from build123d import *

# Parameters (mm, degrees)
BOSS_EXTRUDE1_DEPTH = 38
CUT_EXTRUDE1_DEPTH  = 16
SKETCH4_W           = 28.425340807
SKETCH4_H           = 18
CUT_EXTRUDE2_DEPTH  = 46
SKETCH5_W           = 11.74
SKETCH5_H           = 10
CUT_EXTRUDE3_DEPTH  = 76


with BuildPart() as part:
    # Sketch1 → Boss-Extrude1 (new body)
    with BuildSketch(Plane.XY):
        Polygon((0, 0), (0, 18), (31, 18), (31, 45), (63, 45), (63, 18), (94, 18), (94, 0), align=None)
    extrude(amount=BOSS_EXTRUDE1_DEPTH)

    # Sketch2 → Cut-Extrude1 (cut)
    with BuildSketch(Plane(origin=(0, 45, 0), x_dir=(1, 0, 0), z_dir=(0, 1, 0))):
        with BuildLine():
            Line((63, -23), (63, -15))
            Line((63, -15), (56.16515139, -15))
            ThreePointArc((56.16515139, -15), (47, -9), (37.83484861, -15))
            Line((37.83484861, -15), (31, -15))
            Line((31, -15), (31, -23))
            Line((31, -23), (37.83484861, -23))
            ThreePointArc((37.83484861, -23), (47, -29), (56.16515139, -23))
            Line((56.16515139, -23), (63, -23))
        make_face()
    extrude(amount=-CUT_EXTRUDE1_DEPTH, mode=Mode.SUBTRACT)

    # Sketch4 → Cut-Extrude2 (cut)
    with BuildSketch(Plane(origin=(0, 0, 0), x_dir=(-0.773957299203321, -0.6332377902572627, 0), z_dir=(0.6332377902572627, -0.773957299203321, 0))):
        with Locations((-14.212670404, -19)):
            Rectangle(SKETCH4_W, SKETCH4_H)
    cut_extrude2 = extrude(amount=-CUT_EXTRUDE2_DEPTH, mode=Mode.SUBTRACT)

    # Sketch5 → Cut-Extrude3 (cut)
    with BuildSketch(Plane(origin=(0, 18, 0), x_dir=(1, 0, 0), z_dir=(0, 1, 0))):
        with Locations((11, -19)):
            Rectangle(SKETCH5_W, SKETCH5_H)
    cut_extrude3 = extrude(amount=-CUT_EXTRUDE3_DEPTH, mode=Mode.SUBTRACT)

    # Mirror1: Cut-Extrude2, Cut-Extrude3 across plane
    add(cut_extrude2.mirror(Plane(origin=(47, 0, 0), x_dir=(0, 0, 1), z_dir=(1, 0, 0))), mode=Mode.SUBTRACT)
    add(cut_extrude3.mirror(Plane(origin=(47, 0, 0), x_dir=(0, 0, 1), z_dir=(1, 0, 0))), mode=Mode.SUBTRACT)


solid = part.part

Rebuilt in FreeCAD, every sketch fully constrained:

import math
import FreeCAD as App
import Part
import Sketcher

V = App.Vector


def add_polygon(sketch, points):
    """Adds a closed chain of lines whose ends are joined by coincident constraints."""
    first, n = sketch.GeometryCount, len(points)
    for a, b in zip(points, points[1:] + points[:1]):
        sketch.addGeometry(Part.LineSegment(App.Vector(*a, 0), App.Vector(*b, 0)), False)
    for i in range(n):
        sketch.addConstraint(Sketcher.Constraint("Coincident", first + i, 2, first + (i + 1) % n, 1))

doc = App.newDocument("Part")
params = doc.addObject("Spreadsheet::Sheet", "Params")
for row, (alias, value) in enumerate([
    ("sketch1_width", "94 mm"),
    ("sketch1_width2", "31 mm"),
    ("sketch1_height", "18 mm"),
    ("sketch1_height2", "27 mm"),
    ("pad1_length", "38 mm"),
    ("sketch2_radius", "10 mm"),
    ("sketch2_height", "8 mm"),
    ("pocket1_length", "16 mm"),
    ("sketch3_height", "18 mm"),
    ("pocket2_length", "46 mm"),
    ("sketch4_height", "10 mm"),
    ("sketch4_width", "11.74 mm"),
    ("pocket3_length", "76 mm"),
], start=1):
    params.set(f"A{row}", alias)
    params.set(f"B{row}", "=" + value)
    params.setAlias(f"B{row}", alias)

body = doc.addObject("PartDesign::Body", "Body")

sketch1 = body.newObject("Sketcher::SketchObject", "Sketch")
sketch1.AttachmentSupport = (doc.getObject("XY_Plane"), [""])
sketch1.MapMode = "FlatFace"
add_polygon(sketch1, [(0, 18), (0, 0), (94, 0), (94, 18), (63, 18), (63, 45), (31, 45), (31, 18)])
sketch1.addConstraint([
    Sketcher.Constraint("Vertical", 0),
    Sketcher.Constraint("Horizontal", 1),
    Sketcher.Constraint("Vertical", 2),
    Sketcher.Constraint("Horizontal", 3),
    Sketcher.Constraint("Vertical", 4),
    Sketcher.Constraint("Horizontal", 5),
    Sketcher.Constraint("Vertical", 6),
    Sketcher.Constraint("Horizontal", 7),
    Sketcher.Constraint("Coincident", 0, 2, -1, 1),
    Sketcher.Constraint("Horizontal", 3, 2, 6, 2),
    Sketcher.Constraint("Equal", 3, 7),
    Sketcher.Constraint("DistanceX", 1, 1, 1, 2, 94.0),
    Sketcher.Constraint("DistanceX", 3, 2, 3, 1, 31.0),
    Sketcher.Constraint("DistanceY", 0, 2, 0, 1, 18.0),
    Sketcher.Constraint("DistanceY", 4, 1, 4, 2, 27.0),
])
sketch1.setExpression("Constraints[19]", "Params.sketch1_width")
sketch1.setExpression("Constraints[20]", "Params.sketch1_width2")
sketch1.setExpression("Constraints[21]", "Params.sketch1_height")
sketch1.setExpression("Constraints[22]", "Params.sketch1_height2")
pad1 = body.newObject("PartDesign::Pad", "Pad")
pad1.Profile = sketch1
pad1.setExpression("Length", "Params.pad1_length")

sketch2 = body.newObject("Sketcher::SketchObject", "Sketch001")
sketch2.AttachmentSupport = (doc.getObject("XZ_Plane"), [""])
sketch2.MapMode = "FlatFace"
sketch2.AttachmentOffset = App.Placement(V(0, 0, -45), App.Rotation())
sketch2.addGeometry([
    Part.LineSegment(V(63, 23, 0), V(63, 15, 0)),
    Part.LineSegment(V(63, 15, 0), V(56, 15, 0)),
    Part.ArcOfCircle(Part.Circle(V(47, 19, 0), V(0, 0, 1), 10), math.radians(-156), math.radians(-24)),
    Part.LineSegment(V(38, 15, 0), V(31, 15, 0)),
    Part.LineSegment(V(31, 15, 0), V(31, 23, 0)),
    Part.LineSegment(V(31, 23, 0), V(38, 23, 0)),
    Part.ArcOfCircle(Part.Circle(V(47, 19, 0), V(0, 0, 1), 10), math.radians(24), math.radians(156)),
    Part.LineSegment(V(56, 23, 0), V(63, 23, 0)),
], False)
sketch2.addConstraint([
    Sketcher.Constraint("Coincident", 0, 2, 1, 1),
    Sketcher.Constraint("Coincident", 1, 2, 2, 2),
    Sketcher.Constraint("Coincident", 2, 1, 3, 1),
    Sketcher.Constraint("Coincident", 3, 2, 4, 1),
    Sketcher.Constraint("Coincident", 4, 2, 5, 1),
    Sketcher.Constraint("Coincident", 5, 2, 6, 2),
    Sketcher.Constraint("Coincident", 6, 1, 7, 1),
    Sketcher.Constraint("Coincident", 7, 2, 0, 1),
    Sketcher.Constraint("Vertical", 0),
    Sketcher.Constraint("Horizontal", 1),
    Sketcher.Constraint("Horizontal", 3),
    Sketcher.Constraint("Vertical", 4),
    Sketcher.Constraint("Horizontal", 5),
    Sketcher.Constraint("Horizontal", 7),
    Sketcher.Constraint("Coincident", 6, 3, 2, 3),
    Sketcher.Constraint("Equal", 2, 6),
    Sketcher.Constraint("Horizontal", 1, 2, 2, 1),
    Sketcher.Constraint("Horizontal", 5, 2, 6, 1),
    Sketcher.Constraint("Vertical", 2, 1, 5, 2),
    Sketcher.Constraint("Equal", 1, 3),
    Sketcher.Constraint("Radius", 2, 10.0),
    Sketcher.Constraint("DistanceY", 0, 2, 0, 1, 8.0),
    Sketcher.Constraint("DistanceX", -1, 1, 2, 3, 47.0),
    Sketcher.Constraint("DistanceY", -1, 1, 2, 3, 19.0),
    Sketcher.Constraint("DistanceX", -1, 1, 0, 2, 63.0),
])
sketch2.setExpression("Constraints[20]", "Params.sketch2_radius")
sketch2.setExpression("Constraints[21]", "Params.sketch2_height")
pocket1 = body.newObject("PartDesign::Pocket", "Pocket")
pocket1.Profile = sketch2
pocket1.setExpression("Length", "Params.pocket1_length")
pocket1.Reversed = True

sketch3 = body.newObject("Sketcher::SketchObject", "Sketch002")
sketch3.Placement = App.Placement(V(0, 0, 0), App.Rotation(V(-0.773957299, -0.63323779, 0), V(0, 0, -0.999999999), V(0.63323779, -0.773957299, 0), "ZXY"))
add_polygon(sketch3, [(-28, -10), (-28, -28), (0, -28), (0, -10)])
sketch3.addConstraint([
    Sketcher.Constraint("Vertical", 0),
    Sketcher.Constraint("Horizontal", 1),
    Sketcher.Constraint("Vertical", 2),
    Sketcher.Constraint("Horizontal", 3),
    Sketcher.Constraint("PointOnObject", 1, 2, -2),
    Sketcher.Constraint("DistanceY", 0, 2, 0, 1, 18.0),
    Sketcher.Constraint("DistanceY", 0, 2, -1, 1, 28.0),
    Sketcher.Constraint("DistanceX", 1, 1, 1, 2, 28.425341),
])
sketch3.setExpression("Constraints[9]", "Params.sketch3_height")
pocket2 = body.newObject("PartDesign::Pocket", "Pocket001")
pocket2.Profile = sketch3
pocket2.setExpression("Length", "Params.pocket2_length")

sketch4 = body.newObject("Sketcher::SketchObject", "Sketch003")
sketch4.AttachmentSupport = (doc.getObject("XZ_Plane"), [""])
sketch4.MapMode = "FlatFace"
sketch4.AttachmentOffset = App.Placement(V(0, 0, -18), App.Rotation())
add_polygon(sketch4, [(5, 14), (5, 24), (17, 24), (17, 14)])
sketch4.addConstraint([
    Sketcher.Constraint("Vertical", 0),
    Sketcher.Constraint("Horizontal", 1),
    Sketcher.Constraint("Vertical", 2),
    Sketcher.Constraint("Horizontal", 3),
    Sketcher.Constraint("DistanceY", 0, 1, 0, 2, 10.0),
    Sketcher.Constraint("DistanceY", -1, 1, 0, 2, 24.0),
    Sketcher.Constraint("DistanceX", 1, 1, 1, 2, 11.74),
    Sketcher.Constraint("DistanceX", -1, 1, 0, 2, 5.13),
])
sketch4.setExpression("Constraints[8]", "Params.sketch4_height")
sketch4.setExpression("Constraints[10]", "Params.sketch4_width")
pocket3 = body.newObject("PartDesign::Pocket", "Pocket002")
pocket3.Profile = sketch4
pocket3.setExpression("Length", "Params.pocket3_length")
pocket3.Reversed = True
doc.recompute()

datumplane = body.newObject("PartDesign::Plane", "DatumPlane")
datumplane.AttachmentSupport = (doc.getObject("YZ_Plane"), [""])
datumplane.MapMode = "FlatFace"
datumplane.AttachmentOffset = App.Placement(V(0, 0, 47), App.Rotation())
mirrored = body.newObject("PartDesign::Mirrored", "Mirrored")
mirrored.Originals = [pocket2, pocket3]
mirrored.MirrorPlane = (datumplane, [""])
body.Tip = mirrored

doc.recompute()
